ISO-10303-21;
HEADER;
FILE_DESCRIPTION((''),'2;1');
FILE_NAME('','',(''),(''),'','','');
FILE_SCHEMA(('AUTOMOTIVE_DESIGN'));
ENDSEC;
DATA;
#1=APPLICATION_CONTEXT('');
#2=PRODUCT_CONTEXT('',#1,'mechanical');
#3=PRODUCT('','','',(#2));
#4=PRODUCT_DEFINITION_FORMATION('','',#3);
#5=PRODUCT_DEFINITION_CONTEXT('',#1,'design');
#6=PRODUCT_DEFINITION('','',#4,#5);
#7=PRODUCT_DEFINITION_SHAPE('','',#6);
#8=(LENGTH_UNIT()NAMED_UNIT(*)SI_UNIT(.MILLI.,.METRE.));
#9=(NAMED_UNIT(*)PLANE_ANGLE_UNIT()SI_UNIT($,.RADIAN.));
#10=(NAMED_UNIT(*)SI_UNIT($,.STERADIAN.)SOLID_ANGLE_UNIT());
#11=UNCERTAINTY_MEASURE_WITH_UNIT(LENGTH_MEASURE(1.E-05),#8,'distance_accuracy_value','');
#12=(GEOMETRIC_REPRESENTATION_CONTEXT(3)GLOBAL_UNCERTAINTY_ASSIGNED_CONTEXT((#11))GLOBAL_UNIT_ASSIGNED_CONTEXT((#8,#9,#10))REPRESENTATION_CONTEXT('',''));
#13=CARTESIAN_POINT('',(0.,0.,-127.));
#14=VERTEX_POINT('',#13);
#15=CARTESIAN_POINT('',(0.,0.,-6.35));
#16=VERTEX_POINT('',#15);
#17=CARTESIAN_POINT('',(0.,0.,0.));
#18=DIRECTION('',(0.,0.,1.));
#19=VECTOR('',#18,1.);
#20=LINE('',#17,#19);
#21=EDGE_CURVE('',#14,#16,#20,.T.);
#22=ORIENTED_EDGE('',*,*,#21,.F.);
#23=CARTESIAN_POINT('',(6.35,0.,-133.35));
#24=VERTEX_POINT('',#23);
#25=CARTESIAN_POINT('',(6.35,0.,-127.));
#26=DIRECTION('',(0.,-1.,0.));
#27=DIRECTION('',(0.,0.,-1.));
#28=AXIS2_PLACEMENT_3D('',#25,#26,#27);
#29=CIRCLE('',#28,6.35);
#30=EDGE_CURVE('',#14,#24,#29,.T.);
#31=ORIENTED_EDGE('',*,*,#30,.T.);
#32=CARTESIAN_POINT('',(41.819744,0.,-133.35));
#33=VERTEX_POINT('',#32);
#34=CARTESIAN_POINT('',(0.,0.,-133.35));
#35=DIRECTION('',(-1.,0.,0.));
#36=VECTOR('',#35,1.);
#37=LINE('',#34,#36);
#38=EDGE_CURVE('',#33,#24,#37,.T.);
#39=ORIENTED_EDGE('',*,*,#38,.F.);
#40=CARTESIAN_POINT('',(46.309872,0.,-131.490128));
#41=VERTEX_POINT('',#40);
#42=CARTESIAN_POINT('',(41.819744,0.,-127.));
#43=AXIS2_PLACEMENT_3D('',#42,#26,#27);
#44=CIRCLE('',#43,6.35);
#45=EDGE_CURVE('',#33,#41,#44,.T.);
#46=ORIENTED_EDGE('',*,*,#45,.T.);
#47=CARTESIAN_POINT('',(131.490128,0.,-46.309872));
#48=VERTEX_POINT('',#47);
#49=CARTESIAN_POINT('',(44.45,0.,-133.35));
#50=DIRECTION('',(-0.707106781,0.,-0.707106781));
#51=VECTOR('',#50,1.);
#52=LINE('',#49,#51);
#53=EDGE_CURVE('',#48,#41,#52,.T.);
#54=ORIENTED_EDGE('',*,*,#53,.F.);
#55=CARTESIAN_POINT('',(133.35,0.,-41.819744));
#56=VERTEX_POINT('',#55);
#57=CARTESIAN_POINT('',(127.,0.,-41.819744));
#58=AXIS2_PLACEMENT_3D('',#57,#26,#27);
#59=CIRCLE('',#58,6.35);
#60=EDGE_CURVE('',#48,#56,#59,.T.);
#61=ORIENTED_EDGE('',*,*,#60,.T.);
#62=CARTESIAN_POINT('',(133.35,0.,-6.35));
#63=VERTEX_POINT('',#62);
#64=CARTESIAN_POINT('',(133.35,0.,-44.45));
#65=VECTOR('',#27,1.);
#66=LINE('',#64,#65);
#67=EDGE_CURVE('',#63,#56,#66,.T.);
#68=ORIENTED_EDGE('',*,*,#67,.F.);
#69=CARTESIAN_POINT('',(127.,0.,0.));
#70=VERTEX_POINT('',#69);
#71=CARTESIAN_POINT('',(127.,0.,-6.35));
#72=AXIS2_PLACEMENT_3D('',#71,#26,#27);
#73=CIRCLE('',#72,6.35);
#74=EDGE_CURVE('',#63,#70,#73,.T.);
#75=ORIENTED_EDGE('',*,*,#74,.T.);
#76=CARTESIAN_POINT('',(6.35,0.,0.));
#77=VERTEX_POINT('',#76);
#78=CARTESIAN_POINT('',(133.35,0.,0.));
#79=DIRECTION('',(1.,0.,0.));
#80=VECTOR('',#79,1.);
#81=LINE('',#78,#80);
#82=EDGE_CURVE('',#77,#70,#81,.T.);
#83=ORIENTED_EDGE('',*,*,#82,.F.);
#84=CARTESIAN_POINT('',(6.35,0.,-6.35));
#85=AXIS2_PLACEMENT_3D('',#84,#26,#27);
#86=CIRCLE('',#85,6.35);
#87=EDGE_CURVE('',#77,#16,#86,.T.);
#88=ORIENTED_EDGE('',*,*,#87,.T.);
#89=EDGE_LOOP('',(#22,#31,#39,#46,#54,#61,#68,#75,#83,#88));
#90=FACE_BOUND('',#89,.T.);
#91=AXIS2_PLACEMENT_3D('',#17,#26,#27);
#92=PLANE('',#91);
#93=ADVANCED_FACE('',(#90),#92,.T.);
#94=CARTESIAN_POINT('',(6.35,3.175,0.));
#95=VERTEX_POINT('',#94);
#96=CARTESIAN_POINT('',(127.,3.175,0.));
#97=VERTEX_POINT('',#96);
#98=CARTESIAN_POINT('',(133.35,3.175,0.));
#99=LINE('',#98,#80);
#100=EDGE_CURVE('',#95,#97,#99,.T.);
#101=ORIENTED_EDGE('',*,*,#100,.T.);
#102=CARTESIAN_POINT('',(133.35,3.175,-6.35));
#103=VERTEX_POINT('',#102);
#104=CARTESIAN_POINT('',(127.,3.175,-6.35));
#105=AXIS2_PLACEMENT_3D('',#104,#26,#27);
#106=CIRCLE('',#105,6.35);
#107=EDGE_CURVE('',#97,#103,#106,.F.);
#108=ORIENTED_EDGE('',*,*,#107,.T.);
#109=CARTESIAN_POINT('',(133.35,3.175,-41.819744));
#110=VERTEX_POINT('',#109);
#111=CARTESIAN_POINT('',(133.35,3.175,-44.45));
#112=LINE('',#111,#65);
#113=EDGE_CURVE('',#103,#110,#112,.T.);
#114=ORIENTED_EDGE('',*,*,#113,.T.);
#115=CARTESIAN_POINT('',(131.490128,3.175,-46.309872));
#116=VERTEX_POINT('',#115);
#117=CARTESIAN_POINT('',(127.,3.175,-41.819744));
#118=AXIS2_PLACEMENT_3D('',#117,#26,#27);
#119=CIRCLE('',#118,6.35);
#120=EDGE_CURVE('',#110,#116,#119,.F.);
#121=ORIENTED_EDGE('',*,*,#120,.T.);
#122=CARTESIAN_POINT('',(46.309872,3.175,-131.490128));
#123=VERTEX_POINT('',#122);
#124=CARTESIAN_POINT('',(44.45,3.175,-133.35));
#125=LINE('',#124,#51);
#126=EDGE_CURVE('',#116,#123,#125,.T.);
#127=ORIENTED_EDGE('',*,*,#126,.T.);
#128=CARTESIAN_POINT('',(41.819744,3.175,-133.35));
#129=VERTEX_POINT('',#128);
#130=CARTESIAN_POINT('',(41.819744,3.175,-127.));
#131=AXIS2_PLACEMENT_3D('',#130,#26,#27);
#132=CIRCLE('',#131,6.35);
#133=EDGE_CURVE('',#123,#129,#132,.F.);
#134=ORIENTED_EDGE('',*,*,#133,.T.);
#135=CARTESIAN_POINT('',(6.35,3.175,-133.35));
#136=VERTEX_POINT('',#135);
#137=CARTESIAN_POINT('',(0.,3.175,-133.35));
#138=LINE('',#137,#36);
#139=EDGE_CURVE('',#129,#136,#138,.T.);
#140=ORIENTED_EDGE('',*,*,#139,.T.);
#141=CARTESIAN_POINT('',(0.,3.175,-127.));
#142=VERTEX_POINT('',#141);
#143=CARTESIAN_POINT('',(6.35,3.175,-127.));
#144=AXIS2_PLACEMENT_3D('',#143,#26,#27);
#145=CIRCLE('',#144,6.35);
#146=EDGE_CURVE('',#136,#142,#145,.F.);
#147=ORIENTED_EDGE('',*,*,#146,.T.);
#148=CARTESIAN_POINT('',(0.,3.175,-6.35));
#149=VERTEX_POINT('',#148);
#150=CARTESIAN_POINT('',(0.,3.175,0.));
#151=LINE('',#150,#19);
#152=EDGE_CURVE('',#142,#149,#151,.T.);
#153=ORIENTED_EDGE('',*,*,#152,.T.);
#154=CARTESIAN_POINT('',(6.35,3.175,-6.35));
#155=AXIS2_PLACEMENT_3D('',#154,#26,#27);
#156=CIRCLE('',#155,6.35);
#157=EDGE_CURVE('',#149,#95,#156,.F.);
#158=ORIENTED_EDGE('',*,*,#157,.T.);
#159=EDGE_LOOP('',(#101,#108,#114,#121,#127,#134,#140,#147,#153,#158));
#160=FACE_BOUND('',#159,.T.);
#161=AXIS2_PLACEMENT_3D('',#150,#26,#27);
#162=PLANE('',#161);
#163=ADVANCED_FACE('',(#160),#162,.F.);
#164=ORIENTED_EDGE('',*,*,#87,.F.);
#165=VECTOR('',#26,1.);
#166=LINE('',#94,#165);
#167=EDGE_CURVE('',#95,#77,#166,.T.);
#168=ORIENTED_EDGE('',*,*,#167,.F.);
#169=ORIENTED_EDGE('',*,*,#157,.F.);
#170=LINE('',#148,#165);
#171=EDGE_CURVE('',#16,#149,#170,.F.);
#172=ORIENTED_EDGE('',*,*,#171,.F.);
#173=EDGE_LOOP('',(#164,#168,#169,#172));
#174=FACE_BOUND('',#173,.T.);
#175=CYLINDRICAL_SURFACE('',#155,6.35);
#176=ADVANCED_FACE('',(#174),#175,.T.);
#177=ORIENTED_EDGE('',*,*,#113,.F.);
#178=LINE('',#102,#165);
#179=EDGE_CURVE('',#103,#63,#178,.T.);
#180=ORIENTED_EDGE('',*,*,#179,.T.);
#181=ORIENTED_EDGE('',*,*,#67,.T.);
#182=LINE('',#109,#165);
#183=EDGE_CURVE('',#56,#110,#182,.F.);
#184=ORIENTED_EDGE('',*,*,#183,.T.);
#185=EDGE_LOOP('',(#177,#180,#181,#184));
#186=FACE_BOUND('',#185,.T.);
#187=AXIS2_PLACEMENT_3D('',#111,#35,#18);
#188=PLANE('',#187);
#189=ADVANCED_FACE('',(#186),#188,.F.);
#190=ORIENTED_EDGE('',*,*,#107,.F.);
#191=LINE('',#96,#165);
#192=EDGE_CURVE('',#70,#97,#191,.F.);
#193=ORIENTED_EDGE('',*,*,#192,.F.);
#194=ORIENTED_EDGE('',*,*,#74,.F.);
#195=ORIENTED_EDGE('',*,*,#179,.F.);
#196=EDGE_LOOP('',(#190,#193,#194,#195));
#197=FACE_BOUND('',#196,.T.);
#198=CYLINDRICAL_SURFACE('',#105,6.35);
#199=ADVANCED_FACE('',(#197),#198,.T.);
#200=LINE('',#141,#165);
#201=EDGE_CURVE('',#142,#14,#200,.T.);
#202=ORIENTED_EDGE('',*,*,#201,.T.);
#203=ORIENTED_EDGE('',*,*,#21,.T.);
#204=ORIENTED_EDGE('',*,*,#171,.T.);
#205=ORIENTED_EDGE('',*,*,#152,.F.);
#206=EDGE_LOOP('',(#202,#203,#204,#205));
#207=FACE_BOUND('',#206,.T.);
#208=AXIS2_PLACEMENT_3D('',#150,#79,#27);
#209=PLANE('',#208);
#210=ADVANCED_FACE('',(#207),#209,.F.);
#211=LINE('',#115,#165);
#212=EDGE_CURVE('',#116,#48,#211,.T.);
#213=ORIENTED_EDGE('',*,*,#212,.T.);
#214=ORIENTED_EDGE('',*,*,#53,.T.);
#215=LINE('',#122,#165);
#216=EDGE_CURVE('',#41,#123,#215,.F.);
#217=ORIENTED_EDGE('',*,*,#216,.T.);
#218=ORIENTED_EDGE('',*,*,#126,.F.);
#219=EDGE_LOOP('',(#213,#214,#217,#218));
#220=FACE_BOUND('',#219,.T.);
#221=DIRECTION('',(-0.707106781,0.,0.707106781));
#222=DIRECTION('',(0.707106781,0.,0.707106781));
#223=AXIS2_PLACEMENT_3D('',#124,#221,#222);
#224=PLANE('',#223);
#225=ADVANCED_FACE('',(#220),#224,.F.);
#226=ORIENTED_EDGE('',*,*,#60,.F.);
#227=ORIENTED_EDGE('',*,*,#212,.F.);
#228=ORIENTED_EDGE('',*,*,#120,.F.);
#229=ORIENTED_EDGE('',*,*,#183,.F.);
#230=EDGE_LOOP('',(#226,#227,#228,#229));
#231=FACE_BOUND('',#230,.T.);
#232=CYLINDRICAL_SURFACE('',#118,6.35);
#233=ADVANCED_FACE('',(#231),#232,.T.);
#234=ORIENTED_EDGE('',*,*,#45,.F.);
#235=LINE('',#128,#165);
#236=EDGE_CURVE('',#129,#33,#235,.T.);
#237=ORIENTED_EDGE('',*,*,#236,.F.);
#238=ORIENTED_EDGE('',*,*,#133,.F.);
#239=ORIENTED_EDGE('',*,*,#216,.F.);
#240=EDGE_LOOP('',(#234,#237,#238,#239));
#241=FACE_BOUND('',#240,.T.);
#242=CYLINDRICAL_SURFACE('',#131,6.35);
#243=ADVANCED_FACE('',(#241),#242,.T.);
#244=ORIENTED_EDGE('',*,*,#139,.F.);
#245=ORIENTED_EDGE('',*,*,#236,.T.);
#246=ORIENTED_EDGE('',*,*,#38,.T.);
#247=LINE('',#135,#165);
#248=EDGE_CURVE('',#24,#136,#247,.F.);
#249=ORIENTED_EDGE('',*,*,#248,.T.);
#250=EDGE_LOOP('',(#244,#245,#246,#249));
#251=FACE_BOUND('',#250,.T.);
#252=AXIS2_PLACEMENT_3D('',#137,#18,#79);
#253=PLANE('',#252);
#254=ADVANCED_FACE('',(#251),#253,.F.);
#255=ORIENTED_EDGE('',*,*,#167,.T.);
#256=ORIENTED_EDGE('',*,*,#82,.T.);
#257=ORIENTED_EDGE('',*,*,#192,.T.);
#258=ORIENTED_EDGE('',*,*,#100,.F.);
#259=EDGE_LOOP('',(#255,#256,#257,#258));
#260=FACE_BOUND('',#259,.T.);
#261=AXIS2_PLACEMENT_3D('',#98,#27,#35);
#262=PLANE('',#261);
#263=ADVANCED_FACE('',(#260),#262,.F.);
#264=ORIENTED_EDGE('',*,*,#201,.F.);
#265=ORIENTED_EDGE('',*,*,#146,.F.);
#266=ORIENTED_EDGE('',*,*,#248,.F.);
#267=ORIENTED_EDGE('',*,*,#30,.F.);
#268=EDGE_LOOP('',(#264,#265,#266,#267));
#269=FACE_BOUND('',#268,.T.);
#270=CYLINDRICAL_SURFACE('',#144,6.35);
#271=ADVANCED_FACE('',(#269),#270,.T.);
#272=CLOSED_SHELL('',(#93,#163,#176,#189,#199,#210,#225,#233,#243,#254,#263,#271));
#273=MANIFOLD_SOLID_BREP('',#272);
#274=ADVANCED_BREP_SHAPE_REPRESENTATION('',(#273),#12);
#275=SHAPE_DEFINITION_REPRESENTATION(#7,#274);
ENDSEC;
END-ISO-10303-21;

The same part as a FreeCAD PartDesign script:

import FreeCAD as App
import Part
import Sketcher
from FreeCAD import Vector
Q = App.Units.Quantity


def edges_at(feature, points):
    """Names of the edges that pass closest to the given points."""
    edges = feature.Shape.Edges
    near = lambda p: min(range(len(edges)), key=lambda i: edges[i].distToShape(Part.Vertex(*p))[0])
    return sorted({f"Edge{near(p) + 1}" for p in points})


def add_polygon(sketch, points):
    """Adds a closed chain of lines whose ends are joined by coincident constraints."""
    first, n = sketch.GeometryCount, len(points)
    for a, b in zip(points, points[1:] + points[:1]):
        sketch.addGeometry(Part.LineSegment(App.Vector(*a, 0), App.Vector(*b, 0)), False)
    for i in range(n):
        sketch.addConstraint(Sketcher.Constraint("Coincident", first + i, 2, first + (i + 1) % n, 1))

doc = App.newDocument("Part")
params = doc.addObject("Spreadsheet::Sheet", "Params")
for row, (alias, value) in enumerate([
    ("sketch1_width", "5.25 in"),
    ("sketch1_width2", "1.75 in"),
    ("pad1_length", "0.125 in"),
    ("fillet_radius", "0.25 in"),
], start=1):
    params.set(f"A{row}", alias)
    params.set(f"B{row}", "=" + value)
    params.setAlias(f"B{row}", alias)

body = doc.addObject("PartDesign::Body", "Body")

# Sketch on XZ plane
sketch1 = body.newObject("Sketcher::SketchObject", "Sketch")
sketch1.AttachmentSupport = (doc.getObject("XZ_Plane"), [""])
sketch1.MapMode = "FlatFace"
add_polygon(sketch1, [(0, -133), (0, 0), (133, 0), (133, -44), (44, -133)])  # lines 0-4
sketch1.addConstraint([
    Sketcher.Constraint("Vertical", 0),
    Sketcher.Constraint("Horizontal", 1),
    Sketcher.Constraint("Vertical", 2),
    Sketcher.Constraint("Horizontal", 4),
    Sketcher.Constraint("Coincident", 0, 2, -1, 1),
    Sketcher.Constraint("Equal", 1, 0),
    Sketcher.Constraint("Equal", 4, 2),
    Sketcher.Constraint("DistanceX", 1, 1, 1, 2, Q("5.25 in")),
    Sketcher.Constraint("DistanceX", 4, 2, 4, 1, Q("1.75 in")),
])
sketch1.setExpression("Constraints[12]", "Params.sketch1_width")
sketch1.setExpression("Constraints[13]", "Params.sketch1_width2")
pad1 = body.newObject("PartDesign::Pad", "Pad")
pad1.Profile = sketch1
pad1.setExpression("Length", "Params.pad1_length")
pad1.Reversed = True
doc.recompute()

fillet = body.newObject("PartDesign::Fillet", "Fillet")
fillet.Base = (pad1, edges_at(pad1, [
    (0, 1.587, 0),
    (0, 1.587, -133.35),
    (44.45, 1.587, -133.35),
    (133.35, 1.587, -44.45),
    (133.35, 1.587, 0),
]))
fillet.setExpression("Radius", "Params.fillet_radius")

doc.recompute()
